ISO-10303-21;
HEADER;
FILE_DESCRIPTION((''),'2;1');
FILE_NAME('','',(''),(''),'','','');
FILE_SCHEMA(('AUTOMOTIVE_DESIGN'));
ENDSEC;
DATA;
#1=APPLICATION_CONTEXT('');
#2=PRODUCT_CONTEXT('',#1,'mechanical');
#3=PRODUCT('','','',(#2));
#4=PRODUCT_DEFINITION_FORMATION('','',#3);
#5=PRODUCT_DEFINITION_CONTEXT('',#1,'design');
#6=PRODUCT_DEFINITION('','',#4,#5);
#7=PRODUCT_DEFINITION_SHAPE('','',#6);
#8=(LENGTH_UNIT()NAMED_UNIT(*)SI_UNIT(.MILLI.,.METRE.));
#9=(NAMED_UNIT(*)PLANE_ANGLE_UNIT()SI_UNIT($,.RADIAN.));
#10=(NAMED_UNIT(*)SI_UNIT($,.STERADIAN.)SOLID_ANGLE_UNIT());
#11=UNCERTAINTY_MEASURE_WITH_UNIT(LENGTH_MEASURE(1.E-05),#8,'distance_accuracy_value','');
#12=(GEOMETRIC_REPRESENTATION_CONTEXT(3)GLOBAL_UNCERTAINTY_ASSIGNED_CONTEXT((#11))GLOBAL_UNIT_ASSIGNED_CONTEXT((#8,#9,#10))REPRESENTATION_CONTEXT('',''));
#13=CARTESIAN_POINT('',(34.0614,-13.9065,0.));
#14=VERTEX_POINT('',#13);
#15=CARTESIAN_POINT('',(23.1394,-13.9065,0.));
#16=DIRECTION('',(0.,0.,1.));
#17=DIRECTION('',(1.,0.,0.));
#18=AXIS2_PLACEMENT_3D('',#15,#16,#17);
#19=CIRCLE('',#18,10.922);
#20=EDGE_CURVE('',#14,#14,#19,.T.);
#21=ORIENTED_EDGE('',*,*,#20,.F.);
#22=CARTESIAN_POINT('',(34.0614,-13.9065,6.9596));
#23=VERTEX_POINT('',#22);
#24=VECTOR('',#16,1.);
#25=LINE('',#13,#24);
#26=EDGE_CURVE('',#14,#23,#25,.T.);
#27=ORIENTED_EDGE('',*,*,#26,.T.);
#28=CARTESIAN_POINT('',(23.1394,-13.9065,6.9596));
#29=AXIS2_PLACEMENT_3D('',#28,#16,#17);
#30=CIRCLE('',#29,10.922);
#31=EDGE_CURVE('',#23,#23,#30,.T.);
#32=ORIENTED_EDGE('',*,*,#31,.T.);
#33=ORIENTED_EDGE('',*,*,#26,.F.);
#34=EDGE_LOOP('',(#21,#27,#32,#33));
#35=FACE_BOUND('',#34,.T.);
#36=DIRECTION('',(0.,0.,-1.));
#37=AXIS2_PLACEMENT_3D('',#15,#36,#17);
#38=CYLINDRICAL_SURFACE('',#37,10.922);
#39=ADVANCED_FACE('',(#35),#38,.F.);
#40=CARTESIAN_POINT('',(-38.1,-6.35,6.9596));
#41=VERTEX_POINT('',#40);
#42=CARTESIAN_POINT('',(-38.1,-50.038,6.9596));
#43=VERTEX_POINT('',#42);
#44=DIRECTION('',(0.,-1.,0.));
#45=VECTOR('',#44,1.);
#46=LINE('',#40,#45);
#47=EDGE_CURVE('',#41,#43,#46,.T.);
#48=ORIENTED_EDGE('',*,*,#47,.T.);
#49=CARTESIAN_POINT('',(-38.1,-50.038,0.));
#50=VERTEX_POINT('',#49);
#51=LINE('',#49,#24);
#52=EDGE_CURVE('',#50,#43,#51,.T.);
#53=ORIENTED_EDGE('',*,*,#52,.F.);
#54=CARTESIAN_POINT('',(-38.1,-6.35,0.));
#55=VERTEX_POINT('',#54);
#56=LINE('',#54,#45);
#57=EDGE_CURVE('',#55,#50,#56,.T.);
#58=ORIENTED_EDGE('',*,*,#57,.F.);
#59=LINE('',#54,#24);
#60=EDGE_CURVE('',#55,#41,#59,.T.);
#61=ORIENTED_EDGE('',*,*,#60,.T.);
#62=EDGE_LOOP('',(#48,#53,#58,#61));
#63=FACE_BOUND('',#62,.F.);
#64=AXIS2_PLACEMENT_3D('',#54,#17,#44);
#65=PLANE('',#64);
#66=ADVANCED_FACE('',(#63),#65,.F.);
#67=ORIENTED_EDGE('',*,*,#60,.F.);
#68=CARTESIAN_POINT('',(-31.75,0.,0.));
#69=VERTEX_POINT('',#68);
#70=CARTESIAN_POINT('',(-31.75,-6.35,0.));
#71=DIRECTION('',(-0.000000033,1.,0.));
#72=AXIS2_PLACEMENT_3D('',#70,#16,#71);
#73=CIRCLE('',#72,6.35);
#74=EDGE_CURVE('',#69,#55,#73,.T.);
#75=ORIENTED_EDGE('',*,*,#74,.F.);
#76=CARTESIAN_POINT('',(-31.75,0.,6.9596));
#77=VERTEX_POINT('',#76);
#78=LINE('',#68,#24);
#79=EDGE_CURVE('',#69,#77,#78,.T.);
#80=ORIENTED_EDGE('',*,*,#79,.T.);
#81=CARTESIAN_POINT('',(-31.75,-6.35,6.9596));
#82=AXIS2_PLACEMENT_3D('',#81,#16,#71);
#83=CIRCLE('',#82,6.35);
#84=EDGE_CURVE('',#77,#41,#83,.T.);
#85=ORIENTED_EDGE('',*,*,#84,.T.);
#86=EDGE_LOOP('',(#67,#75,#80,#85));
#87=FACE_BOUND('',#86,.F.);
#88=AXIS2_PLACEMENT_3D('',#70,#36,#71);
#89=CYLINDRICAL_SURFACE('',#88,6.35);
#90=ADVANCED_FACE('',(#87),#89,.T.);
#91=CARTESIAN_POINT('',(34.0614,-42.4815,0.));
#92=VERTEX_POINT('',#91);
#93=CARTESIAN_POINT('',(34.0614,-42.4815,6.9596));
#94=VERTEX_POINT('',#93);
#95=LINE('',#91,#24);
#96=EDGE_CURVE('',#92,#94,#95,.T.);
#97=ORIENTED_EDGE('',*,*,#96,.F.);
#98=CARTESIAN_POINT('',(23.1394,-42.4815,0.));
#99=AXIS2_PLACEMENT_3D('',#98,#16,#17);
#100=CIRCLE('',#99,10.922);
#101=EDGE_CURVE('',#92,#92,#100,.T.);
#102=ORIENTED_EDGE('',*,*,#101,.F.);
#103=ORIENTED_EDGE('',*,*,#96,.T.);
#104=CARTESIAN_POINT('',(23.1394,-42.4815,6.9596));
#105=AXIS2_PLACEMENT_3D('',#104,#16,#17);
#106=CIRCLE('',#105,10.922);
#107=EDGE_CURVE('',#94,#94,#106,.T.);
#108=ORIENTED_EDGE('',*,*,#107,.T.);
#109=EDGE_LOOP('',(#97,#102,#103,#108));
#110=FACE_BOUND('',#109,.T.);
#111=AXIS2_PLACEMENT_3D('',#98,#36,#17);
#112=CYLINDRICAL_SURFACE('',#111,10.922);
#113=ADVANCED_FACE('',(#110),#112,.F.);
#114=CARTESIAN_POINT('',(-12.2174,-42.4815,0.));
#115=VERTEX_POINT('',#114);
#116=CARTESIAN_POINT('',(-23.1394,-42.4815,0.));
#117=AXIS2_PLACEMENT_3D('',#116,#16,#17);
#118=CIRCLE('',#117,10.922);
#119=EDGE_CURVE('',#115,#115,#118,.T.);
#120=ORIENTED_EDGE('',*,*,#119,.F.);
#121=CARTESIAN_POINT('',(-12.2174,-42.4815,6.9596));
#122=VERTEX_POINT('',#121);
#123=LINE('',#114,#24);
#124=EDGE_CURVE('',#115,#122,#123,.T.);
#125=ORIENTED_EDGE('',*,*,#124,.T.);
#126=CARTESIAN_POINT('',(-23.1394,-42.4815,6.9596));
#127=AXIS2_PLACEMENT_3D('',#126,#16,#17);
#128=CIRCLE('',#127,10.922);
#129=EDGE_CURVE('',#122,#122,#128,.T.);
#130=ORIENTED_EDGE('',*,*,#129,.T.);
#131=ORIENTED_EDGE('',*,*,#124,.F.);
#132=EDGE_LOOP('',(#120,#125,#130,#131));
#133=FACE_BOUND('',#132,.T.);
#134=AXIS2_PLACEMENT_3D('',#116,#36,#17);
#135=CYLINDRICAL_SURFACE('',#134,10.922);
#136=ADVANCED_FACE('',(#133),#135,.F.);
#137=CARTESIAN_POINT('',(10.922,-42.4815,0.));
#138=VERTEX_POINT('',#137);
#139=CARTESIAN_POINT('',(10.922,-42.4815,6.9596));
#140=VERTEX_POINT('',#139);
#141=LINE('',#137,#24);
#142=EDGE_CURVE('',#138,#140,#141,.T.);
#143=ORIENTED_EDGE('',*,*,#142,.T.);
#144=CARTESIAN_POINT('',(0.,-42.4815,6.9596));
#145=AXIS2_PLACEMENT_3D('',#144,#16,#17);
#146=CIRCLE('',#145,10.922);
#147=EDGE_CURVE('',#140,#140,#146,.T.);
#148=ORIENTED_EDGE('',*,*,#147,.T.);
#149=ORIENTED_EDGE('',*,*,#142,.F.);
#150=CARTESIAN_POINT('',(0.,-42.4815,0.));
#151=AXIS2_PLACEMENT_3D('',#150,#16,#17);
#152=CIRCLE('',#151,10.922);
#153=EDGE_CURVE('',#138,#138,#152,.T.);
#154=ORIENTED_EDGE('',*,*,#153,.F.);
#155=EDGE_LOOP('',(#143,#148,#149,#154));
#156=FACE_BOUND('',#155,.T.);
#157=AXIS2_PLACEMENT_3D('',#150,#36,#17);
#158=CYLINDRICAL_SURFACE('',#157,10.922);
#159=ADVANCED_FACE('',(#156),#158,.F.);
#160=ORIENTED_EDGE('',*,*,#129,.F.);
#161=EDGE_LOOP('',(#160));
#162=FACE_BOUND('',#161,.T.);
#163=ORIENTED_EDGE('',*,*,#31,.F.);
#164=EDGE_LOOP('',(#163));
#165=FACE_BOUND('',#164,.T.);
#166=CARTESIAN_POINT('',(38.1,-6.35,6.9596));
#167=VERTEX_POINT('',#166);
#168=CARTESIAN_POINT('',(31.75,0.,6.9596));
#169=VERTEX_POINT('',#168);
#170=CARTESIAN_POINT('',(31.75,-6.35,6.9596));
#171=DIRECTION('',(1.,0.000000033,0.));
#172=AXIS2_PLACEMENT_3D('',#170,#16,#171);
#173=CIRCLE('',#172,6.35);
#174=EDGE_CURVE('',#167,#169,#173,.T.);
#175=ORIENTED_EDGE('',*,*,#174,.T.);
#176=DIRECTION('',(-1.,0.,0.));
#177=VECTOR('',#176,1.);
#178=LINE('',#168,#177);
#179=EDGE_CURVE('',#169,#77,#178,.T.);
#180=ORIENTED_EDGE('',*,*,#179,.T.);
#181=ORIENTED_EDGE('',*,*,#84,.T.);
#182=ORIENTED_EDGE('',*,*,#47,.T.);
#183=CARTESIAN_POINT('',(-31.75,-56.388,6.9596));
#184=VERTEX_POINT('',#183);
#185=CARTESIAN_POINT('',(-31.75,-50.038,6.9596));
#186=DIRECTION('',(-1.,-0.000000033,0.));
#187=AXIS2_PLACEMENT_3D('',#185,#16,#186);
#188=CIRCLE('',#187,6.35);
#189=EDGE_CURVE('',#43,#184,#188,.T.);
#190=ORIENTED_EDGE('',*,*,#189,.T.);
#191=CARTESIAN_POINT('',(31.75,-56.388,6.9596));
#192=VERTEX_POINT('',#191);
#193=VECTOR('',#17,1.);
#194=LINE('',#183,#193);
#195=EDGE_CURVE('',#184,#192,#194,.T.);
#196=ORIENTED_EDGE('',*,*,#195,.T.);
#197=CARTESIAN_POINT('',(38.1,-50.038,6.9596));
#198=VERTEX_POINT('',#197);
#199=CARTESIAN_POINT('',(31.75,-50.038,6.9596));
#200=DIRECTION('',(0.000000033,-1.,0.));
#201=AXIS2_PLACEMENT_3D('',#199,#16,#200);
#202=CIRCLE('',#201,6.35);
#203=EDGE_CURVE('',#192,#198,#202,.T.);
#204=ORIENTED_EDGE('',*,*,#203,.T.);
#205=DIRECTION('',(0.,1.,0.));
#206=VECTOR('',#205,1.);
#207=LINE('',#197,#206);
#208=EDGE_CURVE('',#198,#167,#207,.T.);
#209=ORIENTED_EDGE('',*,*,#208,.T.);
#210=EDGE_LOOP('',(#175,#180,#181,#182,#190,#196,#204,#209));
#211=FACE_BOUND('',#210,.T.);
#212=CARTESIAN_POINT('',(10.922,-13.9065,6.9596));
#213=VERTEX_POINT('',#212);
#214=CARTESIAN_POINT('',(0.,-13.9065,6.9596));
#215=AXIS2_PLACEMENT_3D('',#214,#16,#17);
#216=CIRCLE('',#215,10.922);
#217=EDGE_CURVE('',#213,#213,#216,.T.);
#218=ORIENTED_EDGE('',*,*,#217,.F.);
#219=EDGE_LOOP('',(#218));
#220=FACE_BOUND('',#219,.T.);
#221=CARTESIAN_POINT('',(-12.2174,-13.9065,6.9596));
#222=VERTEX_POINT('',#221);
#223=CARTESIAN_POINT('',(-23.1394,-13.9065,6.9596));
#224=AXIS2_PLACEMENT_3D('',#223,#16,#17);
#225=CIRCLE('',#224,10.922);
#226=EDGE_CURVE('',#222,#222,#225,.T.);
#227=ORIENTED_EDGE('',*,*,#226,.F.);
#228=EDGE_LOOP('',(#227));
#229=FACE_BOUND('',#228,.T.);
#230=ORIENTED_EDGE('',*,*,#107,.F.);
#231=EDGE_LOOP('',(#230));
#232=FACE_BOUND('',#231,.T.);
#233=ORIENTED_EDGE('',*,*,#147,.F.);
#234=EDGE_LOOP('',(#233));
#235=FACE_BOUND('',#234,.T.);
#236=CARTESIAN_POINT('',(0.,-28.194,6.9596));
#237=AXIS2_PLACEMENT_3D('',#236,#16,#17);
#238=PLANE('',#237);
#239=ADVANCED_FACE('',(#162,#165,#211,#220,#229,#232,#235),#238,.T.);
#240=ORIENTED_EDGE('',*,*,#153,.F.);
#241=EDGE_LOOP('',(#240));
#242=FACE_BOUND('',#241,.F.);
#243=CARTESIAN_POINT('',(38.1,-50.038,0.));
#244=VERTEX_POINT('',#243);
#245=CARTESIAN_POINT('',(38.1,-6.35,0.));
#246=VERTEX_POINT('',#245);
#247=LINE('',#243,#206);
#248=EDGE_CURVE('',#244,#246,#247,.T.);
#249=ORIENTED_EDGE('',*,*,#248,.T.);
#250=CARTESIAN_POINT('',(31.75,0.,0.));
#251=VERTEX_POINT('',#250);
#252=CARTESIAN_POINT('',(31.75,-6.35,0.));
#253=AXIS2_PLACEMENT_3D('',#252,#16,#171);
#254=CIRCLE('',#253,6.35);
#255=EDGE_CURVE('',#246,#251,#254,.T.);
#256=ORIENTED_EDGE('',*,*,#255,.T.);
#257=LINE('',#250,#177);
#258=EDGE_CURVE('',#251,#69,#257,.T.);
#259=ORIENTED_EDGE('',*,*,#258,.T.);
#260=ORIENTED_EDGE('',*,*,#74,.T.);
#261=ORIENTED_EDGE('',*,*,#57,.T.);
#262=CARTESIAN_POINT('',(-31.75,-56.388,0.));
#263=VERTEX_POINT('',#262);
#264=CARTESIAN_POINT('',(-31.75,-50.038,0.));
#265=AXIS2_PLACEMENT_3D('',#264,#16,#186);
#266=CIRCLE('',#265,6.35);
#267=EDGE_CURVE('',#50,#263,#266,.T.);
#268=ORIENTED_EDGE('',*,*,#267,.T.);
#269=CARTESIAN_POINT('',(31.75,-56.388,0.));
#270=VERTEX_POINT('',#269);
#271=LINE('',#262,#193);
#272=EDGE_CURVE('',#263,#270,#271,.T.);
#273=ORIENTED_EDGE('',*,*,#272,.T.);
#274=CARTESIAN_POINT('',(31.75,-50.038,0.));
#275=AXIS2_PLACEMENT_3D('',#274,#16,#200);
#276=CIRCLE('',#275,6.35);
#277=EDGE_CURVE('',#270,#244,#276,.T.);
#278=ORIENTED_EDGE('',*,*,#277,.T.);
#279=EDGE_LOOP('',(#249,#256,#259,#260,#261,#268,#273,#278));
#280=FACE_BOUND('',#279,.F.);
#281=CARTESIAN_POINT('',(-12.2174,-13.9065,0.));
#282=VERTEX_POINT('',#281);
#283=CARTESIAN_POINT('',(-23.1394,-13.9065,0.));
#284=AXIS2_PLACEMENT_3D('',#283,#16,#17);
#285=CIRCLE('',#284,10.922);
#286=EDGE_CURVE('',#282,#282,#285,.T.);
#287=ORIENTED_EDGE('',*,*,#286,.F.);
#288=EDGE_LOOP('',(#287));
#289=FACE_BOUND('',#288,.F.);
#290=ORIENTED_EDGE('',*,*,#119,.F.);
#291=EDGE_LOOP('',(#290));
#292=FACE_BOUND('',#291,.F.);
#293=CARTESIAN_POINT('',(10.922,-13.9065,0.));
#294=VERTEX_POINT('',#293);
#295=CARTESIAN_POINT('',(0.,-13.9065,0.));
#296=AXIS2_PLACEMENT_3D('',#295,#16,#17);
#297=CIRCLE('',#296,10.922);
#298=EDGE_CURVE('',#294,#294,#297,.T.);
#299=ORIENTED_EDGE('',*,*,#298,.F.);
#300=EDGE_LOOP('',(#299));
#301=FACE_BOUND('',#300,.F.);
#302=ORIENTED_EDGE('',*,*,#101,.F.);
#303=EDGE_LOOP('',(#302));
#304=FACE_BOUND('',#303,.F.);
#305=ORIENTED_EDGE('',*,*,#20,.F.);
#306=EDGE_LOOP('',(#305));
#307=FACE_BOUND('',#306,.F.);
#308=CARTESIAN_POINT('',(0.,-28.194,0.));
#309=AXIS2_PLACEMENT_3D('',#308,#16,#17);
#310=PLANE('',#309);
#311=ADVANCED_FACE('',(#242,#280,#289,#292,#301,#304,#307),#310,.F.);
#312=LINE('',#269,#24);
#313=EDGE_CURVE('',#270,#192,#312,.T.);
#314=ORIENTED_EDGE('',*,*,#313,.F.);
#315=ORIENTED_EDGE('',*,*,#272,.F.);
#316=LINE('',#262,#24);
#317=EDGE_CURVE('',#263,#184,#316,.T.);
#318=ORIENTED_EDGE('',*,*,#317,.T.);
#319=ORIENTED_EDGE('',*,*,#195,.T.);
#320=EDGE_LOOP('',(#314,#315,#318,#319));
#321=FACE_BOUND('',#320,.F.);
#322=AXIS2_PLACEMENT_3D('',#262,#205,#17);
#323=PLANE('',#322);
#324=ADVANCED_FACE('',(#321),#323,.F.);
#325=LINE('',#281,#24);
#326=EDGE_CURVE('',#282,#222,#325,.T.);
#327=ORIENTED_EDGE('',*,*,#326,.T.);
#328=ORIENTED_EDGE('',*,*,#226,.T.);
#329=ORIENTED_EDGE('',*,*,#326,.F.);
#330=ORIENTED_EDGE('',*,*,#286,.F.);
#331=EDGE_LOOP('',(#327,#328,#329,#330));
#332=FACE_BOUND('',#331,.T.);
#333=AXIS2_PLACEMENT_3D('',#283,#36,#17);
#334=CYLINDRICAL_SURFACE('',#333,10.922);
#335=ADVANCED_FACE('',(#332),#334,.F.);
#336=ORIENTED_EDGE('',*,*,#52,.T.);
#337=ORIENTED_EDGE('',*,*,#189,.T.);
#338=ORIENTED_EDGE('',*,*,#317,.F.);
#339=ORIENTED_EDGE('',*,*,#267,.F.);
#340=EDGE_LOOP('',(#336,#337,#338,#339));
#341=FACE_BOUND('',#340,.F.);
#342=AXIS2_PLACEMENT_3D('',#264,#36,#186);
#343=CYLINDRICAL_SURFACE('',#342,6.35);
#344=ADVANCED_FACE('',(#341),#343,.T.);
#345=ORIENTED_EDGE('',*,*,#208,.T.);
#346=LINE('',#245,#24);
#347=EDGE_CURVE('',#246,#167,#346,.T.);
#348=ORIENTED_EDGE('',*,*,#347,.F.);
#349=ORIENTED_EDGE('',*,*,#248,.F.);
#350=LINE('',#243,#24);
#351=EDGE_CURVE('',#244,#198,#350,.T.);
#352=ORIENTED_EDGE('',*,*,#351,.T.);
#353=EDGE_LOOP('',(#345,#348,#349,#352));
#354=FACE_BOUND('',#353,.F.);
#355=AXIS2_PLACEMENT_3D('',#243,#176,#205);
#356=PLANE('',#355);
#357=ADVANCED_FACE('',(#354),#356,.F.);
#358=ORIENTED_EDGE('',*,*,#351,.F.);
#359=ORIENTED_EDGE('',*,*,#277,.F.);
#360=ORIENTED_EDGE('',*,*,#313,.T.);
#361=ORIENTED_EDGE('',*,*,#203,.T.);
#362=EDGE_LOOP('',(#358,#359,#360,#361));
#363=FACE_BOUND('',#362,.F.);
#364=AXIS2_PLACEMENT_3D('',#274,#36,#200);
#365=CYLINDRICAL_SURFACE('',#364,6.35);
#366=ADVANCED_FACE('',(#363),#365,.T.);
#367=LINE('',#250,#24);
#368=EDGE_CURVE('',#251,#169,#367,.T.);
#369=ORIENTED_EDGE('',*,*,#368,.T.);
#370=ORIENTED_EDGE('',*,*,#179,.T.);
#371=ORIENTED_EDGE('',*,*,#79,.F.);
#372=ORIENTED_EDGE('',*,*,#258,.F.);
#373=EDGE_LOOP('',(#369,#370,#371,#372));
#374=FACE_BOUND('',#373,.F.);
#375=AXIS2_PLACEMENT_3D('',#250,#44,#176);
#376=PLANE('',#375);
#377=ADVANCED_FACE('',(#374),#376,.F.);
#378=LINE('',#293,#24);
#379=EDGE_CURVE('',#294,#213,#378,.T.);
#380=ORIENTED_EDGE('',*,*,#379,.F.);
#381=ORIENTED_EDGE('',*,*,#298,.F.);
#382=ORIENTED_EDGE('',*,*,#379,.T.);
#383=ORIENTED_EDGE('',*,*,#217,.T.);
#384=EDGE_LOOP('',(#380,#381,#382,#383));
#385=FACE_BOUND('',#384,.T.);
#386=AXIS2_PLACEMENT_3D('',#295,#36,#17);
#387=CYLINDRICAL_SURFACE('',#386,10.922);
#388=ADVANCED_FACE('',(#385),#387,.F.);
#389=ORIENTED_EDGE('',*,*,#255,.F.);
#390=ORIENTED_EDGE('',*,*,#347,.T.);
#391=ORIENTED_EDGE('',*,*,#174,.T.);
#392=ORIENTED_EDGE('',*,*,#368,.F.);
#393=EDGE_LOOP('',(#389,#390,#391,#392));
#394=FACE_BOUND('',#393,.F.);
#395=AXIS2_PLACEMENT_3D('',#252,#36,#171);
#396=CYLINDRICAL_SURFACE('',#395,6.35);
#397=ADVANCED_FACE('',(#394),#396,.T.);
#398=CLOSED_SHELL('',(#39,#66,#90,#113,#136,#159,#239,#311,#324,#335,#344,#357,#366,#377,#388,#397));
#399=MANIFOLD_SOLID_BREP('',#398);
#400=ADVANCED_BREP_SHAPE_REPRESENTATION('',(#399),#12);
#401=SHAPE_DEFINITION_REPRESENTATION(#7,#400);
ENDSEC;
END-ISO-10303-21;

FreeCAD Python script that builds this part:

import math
import FreeCAD as App
import Part
import Sketcher
from FreeCAD import Vector
Q = App.Units.Quantity

doc = App.newDocument("Part")
body = doc.addObject("PartDesign::Body", "Body")

# Sketch on XY plane
sketch1 = body.newObject("Sketcher::SketchObject", "Sketch")
sketch1.AttachmentSupport = (doc.getObject("XY_Plane"), [""])
sketch1.MapMode = "FlatFace"
sketch1.addGeometry([
    Part.LineSegment(Vector(31.75, 0, 0), Vector(-31.75, 0, 0)),  # 0
    Part.ArcOfCircle(Part.Circle(Vector(-31.75, -6.35, 0), Vector(0, 0, 1), 6.35), math.radians(90.000002), math.radians(179.999998)),  # 1
    Part.LineSegment(Vector(-38.1, -6.35, 0), Vector(-38.1, -50.038, 0)),  # 2
    Part.ArcOfCircle(Part.Circle(Vector(-31.75, -50.038, 0), Vector(0, 0, 1), 6.35), math.radians(-179.999998), math.radians(-90.000002)),  # 3
    Part.LineSegment(Vector(-31.75, -56.388, 0), Vector(31.75, -56.388, 0)),  # 4
    Part.ArcOfCircle(Part.Circle(Vector(31.75, -50.038, 0), Vector(0, 0, 1), 6.35), math.radians(-89.999998), math.radians(-0.000002)),  # 5
    Part.LineSegment(Vector(38.1, -50.038, 0), Vector(38.1, -6.35, 0)),  # 6
    Part.ArcOfCircle(Part.Circle(Vector(31.75, -6.35, 0), Vector(0, 0, 1), 6.35), math.radians(0.000002), math.radians(89.999998)),  # 7
    Part.Circle(Vector(-23.1394, -42.4815, 0), Vector(0, 0, 1), 10.922),  # 8
    Part.Circle(Vector(0, -42.4815, 0), Vector(0, 0, 1), 10.922),  # 9
    Part.Circle(Vector(23.1394, -42.4815, 0), Vector(0, 0, 1), 10.922),  # 10
    Part.Circle(Vector(-23.1394, -13.9065, 0), Vector(0, 0, 1), 10.922),  # 11
    Part.Circle(Vector(0, -13.9065, 0), Vector(0, 0, 1), 10.922),  # 12
    Part.Circle(Vector(23.1394, -13.9065, 0), Vector(0, 0, 1), 10.922),  # 13
], False)
sketch1.addConstraint([
    Sketcher.Constraint("Tangent", 0, 2, 1, 1),
    Sketcher.Constraint("Tangent", 1, 2, 2, 1),
    Sketcher.Constraint("Tangent", 2, 2, 3, 1),
    Sketcher.Constraint("Tangent", 3, 2, 4, 1),
    Sketcher.Constraint("Tangent", 4, 2, 5, 1),
    Sketcher.Constraint("Tangent", 5, 2, 6, 1),
    Sketcher.Constraint("Tangent", 6, 2, 7, 1),
    Sketcher.Constraint("Tangent", 7, 2, 0, 1),
    Sketcher.Constraint("Horizontal", 0),
    Sketcher.Constraint("Vertical", 2),
    Sketcher.Constraint("Horizontal", 4),
    Sketcher.Constraint("Vertical", 6),
    Sketcher.Constraint("Equal", 1, 3),
    Sketcher.Constraint("Equal", 3, 5),
    Sketcher.Constraint("Equal", 5, 7),
    Sketcher.Constraint("Equal", 8, 9),
    Sketcher.Constraint("Equal", 9, 10),
    Sketcher.Constraint("Equal", 10, 11),
    Sketcher.Constraint("Equal", 11, 12),
    Sketcher.Constraint("Equal", 12, 13),
    Sketcher.Constraint("Symmetric", 0, 2, 7, 2, -1, 1),
    Sketcher.Constraint("Symmetric", 8, 3, 10, 3, -2),
    Sketcher.Constraint("Symmetric", 11, 3, 13, 3, -2),
    Sketcher.Constraint("PointOnObject", 9, 3, -2),
    Sketcher.Constraint("PointOnObject", 12, 3, -2),
    Sketcher.Constraint("Horizontal", 8, 3, 9, 3),
    Sketcher.Constraint("Horizontal", 11, 3, 12, 3),
    Sketcher.Constraint("Vertical", 8, 3, 11, 3),
    Sketcher.Constraint("Diameter", 8, Q("0.86 in")),
    Sketcher.Constraint("Radius", 1, Q("0.25 in")),
    Sketcher.Constraint("DistanceX", 0, 2, 0, 1, Q("2.5 in")),
    Sketcher.Constraint("DistanceY", 2, 2, 2, 1, Q("1.72 in")),
    Sketcher.Constraint("DistanceX", 8, 3, -1, 1, Q("0.911 in")),
    Sketcher.Constraint("DistanceY", 8, 3, 11, 3, Q("1.125 in")),
    Sketcher.Constraint("DistanceY", 8, 3, -1, 1, Q("1.6725 in")),
])
pad1 = body.newObject("PartDesign::Pad", "Pad")
pad1.Profile = sketch1
pad1.Length = Q("0.274 in")

doc.recompute()
